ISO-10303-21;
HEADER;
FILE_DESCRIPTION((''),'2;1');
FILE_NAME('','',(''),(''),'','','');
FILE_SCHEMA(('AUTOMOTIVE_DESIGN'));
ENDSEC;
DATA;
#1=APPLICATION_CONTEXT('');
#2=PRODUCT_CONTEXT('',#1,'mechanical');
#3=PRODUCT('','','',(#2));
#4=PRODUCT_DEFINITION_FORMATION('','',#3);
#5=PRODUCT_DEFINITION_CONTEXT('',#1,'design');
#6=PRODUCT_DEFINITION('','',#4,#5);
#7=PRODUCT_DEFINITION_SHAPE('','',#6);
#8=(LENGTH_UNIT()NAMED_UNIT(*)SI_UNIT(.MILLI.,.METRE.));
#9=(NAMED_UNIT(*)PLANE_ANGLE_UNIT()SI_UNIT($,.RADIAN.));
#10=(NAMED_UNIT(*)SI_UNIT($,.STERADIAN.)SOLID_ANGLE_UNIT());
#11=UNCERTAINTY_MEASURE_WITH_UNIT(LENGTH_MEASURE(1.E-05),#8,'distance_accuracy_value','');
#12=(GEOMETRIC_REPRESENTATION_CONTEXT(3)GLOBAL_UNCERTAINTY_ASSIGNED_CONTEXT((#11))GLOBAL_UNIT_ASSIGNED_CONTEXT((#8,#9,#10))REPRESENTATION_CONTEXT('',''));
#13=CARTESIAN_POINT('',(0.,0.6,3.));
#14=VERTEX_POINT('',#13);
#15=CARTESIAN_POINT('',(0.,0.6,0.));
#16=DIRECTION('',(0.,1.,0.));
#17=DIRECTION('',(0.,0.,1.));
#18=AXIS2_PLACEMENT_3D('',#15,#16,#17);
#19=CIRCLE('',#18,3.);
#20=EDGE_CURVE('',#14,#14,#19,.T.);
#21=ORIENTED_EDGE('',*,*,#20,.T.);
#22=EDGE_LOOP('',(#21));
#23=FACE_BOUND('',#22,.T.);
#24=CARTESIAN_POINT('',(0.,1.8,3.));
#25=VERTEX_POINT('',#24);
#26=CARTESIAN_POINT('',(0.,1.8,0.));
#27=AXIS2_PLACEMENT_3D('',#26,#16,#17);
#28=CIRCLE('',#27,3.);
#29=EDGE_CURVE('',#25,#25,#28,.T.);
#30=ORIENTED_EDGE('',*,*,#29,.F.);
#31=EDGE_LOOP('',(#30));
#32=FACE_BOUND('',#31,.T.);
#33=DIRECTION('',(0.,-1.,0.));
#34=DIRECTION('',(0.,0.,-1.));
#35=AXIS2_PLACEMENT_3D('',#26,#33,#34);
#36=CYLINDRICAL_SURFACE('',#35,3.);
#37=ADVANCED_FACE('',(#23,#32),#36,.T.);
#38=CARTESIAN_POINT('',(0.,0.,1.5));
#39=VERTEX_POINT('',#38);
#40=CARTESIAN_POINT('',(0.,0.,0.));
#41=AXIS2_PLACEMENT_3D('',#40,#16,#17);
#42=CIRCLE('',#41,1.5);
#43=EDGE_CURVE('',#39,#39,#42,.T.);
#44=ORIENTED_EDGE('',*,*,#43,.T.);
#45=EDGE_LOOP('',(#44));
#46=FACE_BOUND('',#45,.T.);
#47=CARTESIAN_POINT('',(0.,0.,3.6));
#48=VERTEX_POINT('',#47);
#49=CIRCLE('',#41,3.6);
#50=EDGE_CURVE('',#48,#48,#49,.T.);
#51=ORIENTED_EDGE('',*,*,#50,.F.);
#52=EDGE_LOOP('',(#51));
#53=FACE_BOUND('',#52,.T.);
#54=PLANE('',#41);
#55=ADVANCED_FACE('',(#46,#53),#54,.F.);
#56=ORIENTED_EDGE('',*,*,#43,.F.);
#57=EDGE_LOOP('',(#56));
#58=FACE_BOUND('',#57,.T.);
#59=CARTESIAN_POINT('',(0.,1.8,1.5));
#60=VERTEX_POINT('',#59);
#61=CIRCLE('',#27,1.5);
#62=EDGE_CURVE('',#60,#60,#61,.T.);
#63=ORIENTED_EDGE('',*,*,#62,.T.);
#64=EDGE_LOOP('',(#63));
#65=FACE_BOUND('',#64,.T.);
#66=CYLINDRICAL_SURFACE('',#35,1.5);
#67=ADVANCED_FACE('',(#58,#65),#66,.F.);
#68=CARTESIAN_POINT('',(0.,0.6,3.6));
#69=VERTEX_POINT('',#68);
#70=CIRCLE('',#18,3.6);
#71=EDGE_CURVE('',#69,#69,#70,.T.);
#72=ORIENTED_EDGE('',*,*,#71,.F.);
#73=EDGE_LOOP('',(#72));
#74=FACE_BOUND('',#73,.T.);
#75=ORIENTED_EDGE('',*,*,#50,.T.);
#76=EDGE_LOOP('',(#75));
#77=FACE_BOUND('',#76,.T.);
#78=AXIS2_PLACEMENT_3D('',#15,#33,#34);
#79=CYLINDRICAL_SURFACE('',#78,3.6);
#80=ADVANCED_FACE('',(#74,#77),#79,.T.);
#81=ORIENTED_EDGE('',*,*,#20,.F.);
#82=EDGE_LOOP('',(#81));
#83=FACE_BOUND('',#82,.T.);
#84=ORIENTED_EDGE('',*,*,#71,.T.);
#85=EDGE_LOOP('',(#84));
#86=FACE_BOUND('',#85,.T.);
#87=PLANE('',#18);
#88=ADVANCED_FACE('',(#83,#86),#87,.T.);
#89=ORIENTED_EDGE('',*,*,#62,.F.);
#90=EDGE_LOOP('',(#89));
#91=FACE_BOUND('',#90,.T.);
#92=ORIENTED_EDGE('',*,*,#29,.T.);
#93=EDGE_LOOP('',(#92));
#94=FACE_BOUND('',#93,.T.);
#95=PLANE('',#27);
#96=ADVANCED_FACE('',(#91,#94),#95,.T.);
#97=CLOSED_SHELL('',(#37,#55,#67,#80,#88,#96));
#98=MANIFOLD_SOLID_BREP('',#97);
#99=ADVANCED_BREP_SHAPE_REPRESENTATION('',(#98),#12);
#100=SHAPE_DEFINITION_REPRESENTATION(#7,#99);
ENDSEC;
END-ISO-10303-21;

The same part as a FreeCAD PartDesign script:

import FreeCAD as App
import Part
import Sketcher
from FreeCAD import Vector
Q = App.Units.Quantity

doc = App.newDocument("Part")
params = doc.addObject("Spreadsheet::Sheet", "Params")
for row, (alias, value) in enumerate([
    ("sketch1_diameter", "6 mm"),
    ("sketch1_diameter2", "7.2 mm"),
    ("pad1_length", "0.6 mm"),
    ("sketch2_diameter", "6 mm"),
    ("sketch2_diameter2", "3 mm"),
    ("pad2_length", "1.8 mm"),
], start=1):
    params.set(f"A{row}", alias)
    params.set(f"B{row}", "=" + value)
    params.setAlias(f"B{row}", alias)

body = doc.addObject("PartDesign::Body", "Body")

# Sketch on XZ plane
sketch1 = body.newObject("Sketcher::SketchObject", "Sketch")
sketch1.AttachmentSupport = (doc.getObject("XZ_Plane"), [""])
sketch1.MapMode = "FlatFace"
sketch1.addGeometry([
    Part.Circle(Vector(0, 0, 0), Vector(0, 0, 1), 3.6),
    Part.Circle(Vector(0, 0, 0), Vector(0, 0, 1), 3),
], False)
sketch1.addConstraint([
    Sketcher.Constraint("Coincident", 0, 3, -1, 1),
    Sketcher.Constraint("Coincident", 1, 3, -1, 1),
    Sketcher.Constraint("Diameter", 1, Q("6 mm")),
    Sketcher.Constraint("Diameter", 0, Q("7.2 mm")),
])
sketch1.setExpression("Constraints[2]", "Params.sketch1_diameter")
sketch1.setExpression("Constraints[3]", "Params.sketch1_diameter2")
pad1 = body.newObject("PartDesign::Pad", "Pad")
pad1.Profile = sketch1
pad1.setExpression("Length", "Params.pad1_length")
pad1.Reversed = True

# Sketch on XZ plane
sketch2 = body.newObject("Sketcher::SketchObject", "Sketch001")
sketch2.AttachmentSupport = (doc.getObject("XZ_Plane"), [""])
sketch2.MapMode = "FlatFace"
sketch2.addGeometry([
    Part.Circle(Vector(0, 0, 0), Vector(0, 0, 1), 3),
    Part.Circle(Vector(0, 0, 0), Vector(0, 0, 1), 1.5),
], False)
sketch2.addConstraint([
    Sketcher.Constraint("Coincident", 0, 3, -1, 1),
    Sketcher.Constraint("Coincident", 1, 3, -1, 1),
    Sketcher.Constraint("Diameter", 0, Q("6 mm")),
    Sketcher.Constraint("Diameter", 1, Q("3 mm")),
])
sketch2.setExpression("Constraints[2]", "Params.sketch2_diameter")
sketch2.setExpression("Constraints[3]", "Params.sketch2_diameter2")
pad2 = body.newObject("PartDesign::Pad", "Pad001")
pad2.Profile = sketch2
pad2.setExpression("Length", "Params.pad2_length")
pad2.Reversed = True

doc.recompute()
